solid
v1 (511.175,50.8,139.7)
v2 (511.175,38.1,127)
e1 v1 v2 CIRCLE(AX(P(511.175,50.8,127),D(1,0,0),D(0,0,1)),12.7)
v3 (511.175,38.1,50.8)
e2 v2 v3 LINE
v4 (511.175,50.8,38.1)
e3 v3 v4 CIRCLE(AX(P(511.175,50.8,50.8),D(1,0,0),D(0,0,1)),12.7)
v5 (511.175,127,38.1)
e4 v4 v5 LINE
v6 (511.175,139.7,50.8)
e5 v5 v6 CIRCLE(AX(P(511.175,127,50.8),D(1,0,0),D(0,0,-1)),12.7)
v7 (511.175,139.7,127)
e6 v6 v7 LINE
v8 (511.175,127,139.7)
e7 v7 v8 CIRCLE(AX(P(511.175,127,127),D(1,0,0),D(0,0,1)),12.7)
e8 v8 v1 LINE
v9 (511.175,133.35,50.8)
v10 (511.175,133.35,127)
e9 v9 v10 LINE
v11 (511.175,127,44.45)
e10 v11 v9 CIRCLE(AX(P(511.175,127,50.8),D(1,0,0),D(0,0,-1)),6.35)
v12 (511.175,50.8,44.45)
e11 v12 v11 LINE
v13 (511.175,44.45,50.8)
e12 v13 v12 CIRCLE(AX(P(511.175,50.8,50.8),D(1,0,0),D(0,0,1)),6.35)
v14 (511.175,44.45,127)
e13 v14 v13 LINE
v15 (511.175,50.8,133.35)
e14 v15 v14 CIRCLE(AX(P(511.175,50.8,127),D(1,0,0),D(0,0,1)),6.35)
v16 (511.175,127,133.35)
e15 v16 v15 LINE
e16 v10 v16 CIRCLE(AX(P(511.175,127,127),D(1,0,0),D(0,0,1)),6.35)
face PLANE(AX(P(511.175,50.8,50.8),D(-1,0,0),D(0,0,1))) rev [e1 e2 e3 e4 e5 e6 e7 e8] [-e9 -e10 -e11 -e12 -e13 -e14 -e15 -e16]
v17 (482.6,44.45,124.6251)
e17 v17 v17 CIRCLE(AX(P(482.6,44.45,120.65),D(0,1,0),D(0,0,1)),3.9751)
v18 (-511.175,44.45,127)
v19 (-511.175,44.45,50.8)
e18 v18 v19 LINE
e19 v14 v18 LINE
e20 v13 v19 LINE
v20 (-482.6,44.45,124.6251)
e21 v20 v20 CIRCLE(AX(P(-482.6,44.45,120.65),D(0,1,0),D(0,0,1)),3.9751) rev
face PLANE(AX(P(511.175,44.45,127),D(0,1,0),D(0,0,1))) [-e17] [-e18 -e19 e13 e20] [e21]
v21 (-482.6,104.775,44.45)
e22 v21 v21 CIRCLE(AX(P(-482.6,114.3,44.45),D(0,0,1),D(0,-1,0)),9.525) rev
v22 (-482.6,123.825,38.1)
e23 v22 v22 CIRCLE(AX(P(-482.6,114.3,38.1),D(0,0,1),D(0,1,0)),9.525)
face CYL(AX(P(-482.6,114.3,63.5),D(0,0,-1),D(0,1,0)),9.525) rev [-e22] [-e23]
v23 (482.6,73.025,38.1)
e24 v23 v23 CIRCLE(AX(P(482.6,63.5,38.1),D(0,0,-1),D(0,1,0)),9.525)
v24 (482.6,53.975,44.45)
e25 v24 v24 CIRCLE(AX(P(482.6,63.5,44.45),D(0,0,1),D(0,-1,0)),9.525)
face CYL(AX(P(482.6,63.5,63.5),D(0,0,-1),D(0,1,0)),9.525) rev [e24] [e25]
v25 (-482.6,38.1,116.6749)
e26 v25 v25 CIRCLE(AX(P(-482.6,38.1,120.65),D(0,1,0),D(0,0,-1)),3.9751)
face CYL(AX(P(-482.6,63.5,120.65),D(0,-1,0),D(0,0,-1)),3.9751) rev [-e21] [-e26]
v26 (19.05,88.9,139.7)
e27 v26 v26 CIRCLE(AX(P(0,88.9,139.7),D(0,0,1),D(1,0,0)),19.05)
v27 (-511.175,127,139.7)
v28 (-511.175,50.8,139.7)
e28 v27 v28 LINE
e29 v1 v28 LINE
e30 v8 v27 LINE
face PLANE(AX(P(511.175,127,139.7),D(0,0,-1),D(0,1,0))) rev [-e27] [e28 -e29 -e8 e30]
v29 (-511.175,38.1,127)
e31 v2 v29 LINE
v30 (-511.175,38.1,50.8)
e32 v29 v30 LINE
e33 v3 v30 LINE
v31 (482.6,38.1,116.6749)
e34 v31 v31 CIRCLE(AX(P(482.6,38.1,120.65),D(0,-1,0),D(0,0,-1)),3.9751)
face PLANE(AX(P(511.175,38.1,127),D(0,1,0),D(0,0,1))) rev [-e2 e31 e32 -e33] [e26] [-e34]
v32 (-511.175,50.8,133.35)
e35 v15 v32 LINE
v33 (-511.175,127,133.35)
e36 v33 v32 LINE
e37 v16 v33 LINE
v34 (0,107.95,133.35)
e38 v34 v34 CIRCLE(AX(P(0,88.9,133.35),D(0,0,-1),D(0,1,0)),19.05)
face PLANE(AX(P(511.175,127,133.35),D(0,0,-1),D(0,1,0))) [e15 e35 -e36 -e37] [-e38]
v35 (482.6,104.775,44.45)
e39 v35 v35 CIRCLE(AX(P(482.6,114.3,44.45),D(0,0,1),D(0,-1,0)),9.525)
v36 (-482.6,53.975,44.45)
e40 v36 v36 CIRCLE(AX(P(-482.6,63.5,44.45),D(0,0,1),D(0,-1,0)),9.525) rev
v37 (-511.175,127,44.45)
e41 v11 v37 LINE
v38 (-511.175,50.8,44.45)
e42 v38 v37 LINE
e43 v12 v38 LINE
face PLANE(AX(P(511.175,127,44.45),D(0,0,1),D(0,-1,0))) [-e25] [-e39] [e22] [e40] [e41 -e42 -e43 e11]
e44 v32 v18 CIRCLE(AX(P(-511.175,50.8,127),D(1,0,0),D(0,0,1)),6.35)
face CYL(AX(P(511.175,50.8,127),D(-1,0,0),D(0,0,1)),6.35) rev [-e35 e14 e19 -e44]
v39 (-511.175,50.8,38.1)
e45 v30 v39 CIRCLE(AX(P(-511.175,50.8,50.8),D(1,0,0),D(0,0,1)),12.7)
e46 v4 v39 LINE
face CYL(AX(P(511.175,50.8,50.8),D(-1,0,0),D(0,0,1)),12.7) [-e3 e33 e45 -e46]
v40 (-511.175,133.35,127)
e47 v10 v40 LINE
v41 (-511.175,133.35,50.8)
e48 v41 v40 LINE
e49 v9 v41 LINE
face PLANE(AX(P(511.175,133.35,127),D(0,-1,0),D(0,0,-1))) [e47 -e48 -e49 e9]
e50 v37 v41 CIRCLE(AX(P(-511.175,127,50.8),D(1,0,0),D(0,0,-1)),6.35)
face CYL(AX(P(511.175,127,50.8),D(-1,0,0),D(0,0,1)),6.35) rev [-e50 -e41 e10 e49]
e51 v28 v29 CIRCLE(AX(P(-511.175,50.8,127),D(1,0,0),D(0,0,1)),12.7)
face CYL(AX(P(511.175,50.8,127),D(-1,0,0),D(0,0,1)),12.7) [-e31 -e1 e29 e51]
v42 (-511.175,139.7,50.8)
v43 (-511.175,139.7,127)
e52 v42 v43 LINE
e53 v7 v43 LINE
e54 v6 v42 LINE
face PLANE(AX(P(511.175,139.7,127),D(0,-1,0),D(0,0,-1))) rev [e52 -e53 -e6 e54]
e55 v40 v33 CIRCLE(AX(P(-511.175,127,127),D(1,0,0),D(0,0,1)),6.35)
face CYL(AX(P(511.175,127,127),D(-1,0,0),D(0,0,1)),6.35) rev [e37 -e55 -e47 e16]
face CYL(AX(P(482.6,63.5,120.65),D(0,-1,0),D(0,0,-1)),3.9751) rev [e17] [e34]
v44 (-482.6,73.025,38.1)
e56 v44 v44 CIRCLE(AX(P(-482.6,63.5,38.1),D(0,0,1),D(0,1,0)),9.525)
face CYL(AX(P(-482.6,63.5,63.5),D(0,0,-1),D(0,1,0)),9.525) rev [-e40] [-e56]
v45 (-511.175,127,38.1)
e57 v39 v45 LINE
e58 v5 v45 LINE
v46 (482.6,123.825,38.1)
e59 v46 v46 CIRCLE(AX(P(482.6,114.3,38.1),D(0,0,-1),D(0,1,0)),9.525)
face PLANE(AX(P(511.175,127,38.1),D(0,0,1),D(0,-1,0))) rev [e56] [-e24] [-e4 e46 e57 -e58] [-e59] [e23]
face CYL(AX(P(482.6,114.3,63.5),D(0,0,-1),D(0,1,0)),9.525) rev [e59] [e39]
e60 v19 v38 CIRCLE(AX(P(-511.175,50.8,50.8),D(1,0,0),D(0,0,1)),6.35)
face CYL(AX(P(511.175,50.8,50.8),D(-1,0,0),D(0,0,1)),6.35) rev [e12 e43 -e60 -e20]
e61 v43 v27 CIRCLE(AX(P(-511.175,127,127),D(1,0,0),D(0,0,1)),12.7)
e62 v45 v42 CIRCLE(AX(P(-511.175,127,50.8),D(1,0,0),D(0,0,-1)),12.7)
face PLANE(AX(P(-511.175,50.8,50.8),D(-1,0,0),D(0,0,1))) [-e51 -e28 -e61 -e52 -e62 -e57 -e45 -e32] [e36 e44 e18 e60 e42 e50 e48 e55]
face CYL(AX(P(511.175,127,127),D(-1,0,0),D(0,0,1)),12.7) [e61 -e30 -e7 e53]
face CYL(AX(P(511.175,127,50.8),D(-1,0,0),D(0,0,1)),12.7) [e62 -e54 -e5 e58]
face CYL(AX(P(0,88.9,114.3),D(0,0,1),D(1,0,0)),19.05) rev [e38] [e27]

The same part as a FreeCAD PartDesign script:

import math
import FreeCAD as App
import Part
import Sketcher
Q = App.Units.Quantity

doc = App.newDocument("Part")
params = doc.addObject("Spreadsheet::Sheet", "Params")
for row, (alias, value) in enumerate([
    ("sketch1_radius", "0.5 in"),
    ("sketch1_width", "3 in"),
    ("sketch1_radius2", "0.25 in"),
    ("pad1_length", "40.25 in"),
    ("sketch2_diameter", "1.5 in"),
    ("pocket1_length", "1 in"),
    ("sketch3_diameter", "0.75 in"),
    ("pocket2_length", "1 in"),
    ("sketch4_diameter", "0.313 in"),
    ("pocket3_length", "1 in"),
], start=1):
    params.set(f"A{row}", alias)
    params.set(f"B{row}", "=" + value)
    params.setAlias(f"B{row}", alias)

body = doc.addObject("PartDesign::Body", "Body")

sketch1 = body.newObject("Sketcher::SketchObject", "Sketch")
sketch1.AttachmentSupport = (doc.getObject("YZ_Plane"), [""])
sketch1.MapMode = "FlatFace"
sketch1.addGeometry([
    Part.LineSegment(App.Vector(140, 51, 0), App.Vector(140, 127, 0)),
    Part.ArcOfCircle(Part.Circle(App.Vector(127, 127, 0), App.Vector(0, 0, 1), 13), math.radians(0), math.radians(90)),
    Part.LineSegment(App.Vector(127, 140, 0), App.Vector(51, 140, 0)),
    Part.ArcOfCircle(Part.Circle(App.Vector(51, 127, 0), App.Vector(0, 0, 1), 13), math.radians(90), math.radians(180)),
    Part.LineSegment(App.Vector(38, 127, 0), App.Vector(38, 51, 0)),
    Part.ArcOfCircle(Part.Circle(App.Vector(51, 51, 0), App.Vector(0, 0, 1), 13), math.radians(180), math.radians(270)),
    Part.LineSegment(App.Vector(51, 38, 0), App.Vector(127, 38, 0)),
    Part.ArcOfCircle(Part.Circle(App.Vector(127, 51, 0), App.Vector(0, 0, 1), 13), math.radians(-90), math.radians(0)),
    Part.LineSegment(App.Vector(133, 127, 0), App.Vector(133, 51, 0)),
    Part.ArcOfCircle(Part.Circle(App.Vector(127, 51, 0), App.Vector(0, 0, 1), 6), math.radians(-90), math.radians(0)),
    Part.LineSegment(App.Vector(127, 44, 0), App.Vector(51, 44, 0)),
    Part.ArcOfCircle(Part.Circle(App.Vector(51, 51, 0), App.Vector(0, 0, 1), 6), math.radians(180), math.radians(270)),
    Part.LineSegment(App.Vector(44, 51, 0), App.Vector(44, 127, 0)),
    Part.ArcOfCircle(Part.Circle(App.Vector(51, 127, 0), App.Vector(0, 0, 1), 6), math.radians(90), math.radians(180)),
    Part.LineSegment(App.Vector(51, 133, 0), App.Vector(127, 133, 0)),
    Part.ArcOfCircle(Part.Circle(App.Vector(127, 127, 0), App.Vector(0, 0, 1), 6), math.radians(0), math.radians(90)),
], False)
sketch1.addConstraint([
    Sketcher.Constraint("Tangent", 0, 2, 1, 1),
    Sketcher.Constraint("Tangent", 1, 2, 2, 1),
    Sketcher.Constraint("Tangent", 2, 2, 3, 1),
    Sketcher.Constraint("Tangent", 3, 2, 4, 1),
    Sketcher.Constraint("Tangent", 4, 2, 5, 1),
    Sketcher.Constraint("Tangent", 5, 2, 6, 1),
    Sketcher.Constraint("Tangent", 6, 2, 7, 1),
    Sketcher.Constraint("Tangent", 7, 2, 0, 1),
    Sketcher.Constraint("Tangent", 8, 2, 9, 2),
    Sketcher.Constraint("Tangent", 9, 1, 10, 1),
    Sketcher.Constraint("Tangent", 10, 2, 11, 2),
    Sketcher.Constraint("Tangent", 11, 1, 12, 1),
    Sketcher.Constraint("Tangent", 12, 2, 13, 2),
    Sketcher.Constraint("Tangent", 13, 1, 14, 1),
    Sketcher.Constraint("Tangent", 14, 2, 15, 2),
    Sketcher.Constraint("Tangent", 15, 1, 8, 1),
    Sketcher.Constraint("Vertical", 0),
    Sketcher.Constraint("Horizontal", 2),
    Sketcher.Constraint("Vertical", 4),
    Sketcher.Constraint("Horizontal", 6),
    Sketcher.Constraint("Vertical", 8),
    Sketcher.Constraint("Horizontal", 10),
    Sketcher.Constraint("Vertical", 12),
    Sketcher.Constraint("Horizontal", 14),
    Sketcher.Constraint("Coincident", 9, 3, 7, 3),
    Sketcher.Constraint("Coincident", 11, 3, 5, 3),
    Sketcher.Constraint("Coincident", 13, 3, 3, 3),
    Sketcher.Constraint("Equal", 1, 3),
    Sketcher.Constraint("Equal", 3, 5),
    Sketcher.Constraint("Equal", 5, 7),
    Sketcher.Constraint("Equal", 13, 15),
    Sketcher.Constraint("Equal", 14, 0),
    Sketcher.Constraint("Radius", 1, Q("0.5 in")),
    Sketcher.Constraint("DistanceX", 2, 2, 2, 1, Q("3 in")),
    Sketcher.Constraint("Radius", 9, Q("0.25 in")),
    Sketcher.Constraint("DistanceX", -1, 1, 1, 3, Q("5 in")),
    Sketcher.Constraint("DistanceY", -1, 1, 1, 3, Q("5 in")),
])
sketch1.setExpression("Constraints[32]", "Params.sketch1_radius")
sketch1.setExpression("Constraints[33]", "Params.sketch1_width")
sketch1.setExpression("Constraints[34]", "Params.sketch1_radius2")
pad1 = body.newObject("PartDesign::Pad", "Pad")
pad1.Profile = sketch1
pad1.setExpression("Length", "Params.pad1_length")
pad1.Midplane = True

sketch2 = body.newObject("Sketcher::SketchObject", "Sketch001")
sketch2.AttachmentSupport = (doc.getObject("XY_Plane"), [""])
sketch2.MapMode = "FlatFace"
sketch2.AttachmentOffset = App.Placement(App.Vector(0, 0, 5.5 * 25.4), App.Rotation())
sketch2.addGeometry(Part.Circle(App.Vector(0, 89, 0), App.Vector(0, 0, 1), 19), False)
sketch2.addConstraint([
    Sketcher.Constraint("PointOnObject", 0, 3, -2),
    Sketcher.Constraint("Diameter", 0, Q("1.5 in")),
    Sketcher.Constraint("DistanceY", -1, 1, 0, 3, Q("3.5 in")),
])
sketch2.setExpression("Constraints[1]", "Params.sketch2_diameter")
pocket1 = body.newObject("PartDesign::Pocket", "Pocket")
pocket1.Profile = sketch2
pocket1.setExpression("Length", "Params.pocket1_length")

sketch3 = body.newObject("Sketcher::SketchObject", "Sketch002")
sketch3.AttachmentSupport = (doc.getObject("XY_Plane"), [""])
sketch3.MapMode = "FlatFace"
sketch3.AttachmentOffset = App.Placement(App.Vector(0, 0, 1.5 * 25.4), App.Rotation())
sketch3.addGeometry([
    Part.Circle(App.Vector(483, 64, 0), App.Vector(0, 0, 1), 10),
    Part.Circle(App.Vector(483, 114, 0), App.Vector(0, 0, 1), 10),
], False)
sketch3.addConstraint([
    Sketcher.Constraint("Equal", 0, 1),
    Sketcher.Constraint("Vertical", 0, 3, 1, 3),
    Sketcher.Constraint("Diameter", 0, Q("0.75 in")),
    Sketcher.Constraint("DistanceX", -1, 1, 0, 3, Q("19 in")),
    Sketcher.Constraint("DistanceY", 0, 3, 1, 3, Q("2 in")),
    Sketcher.Constraint("DistanceY", -1, 1, 0, 3, Q("2.5 in")),
])
sketch3.setExpression("Constraints[2]", "Params.sketch3_diameter")
pocket2 = body.newObject("PartDesign::Pocket", "Pocket001")
pocket2.Profile = sketch3
pocket2.setExpression("Length", "Params.pocket2_length")
pocket2.Reversed = True

sketch4 = body.newObject("Sketcher::SketchObject", "Sketch003")
sketch4.AttachmentSupport = (doc.getObject("XZ_Plane"), [""])
sketch4.MapMode = "FlatFace"
sketch4.AttachmentOffset = App.Placement(App.Vector(0, 0, -1.5 * 25.4), App.Rotation())
sketch4.addGeometry(Part.Circle(App.Vector(482.6, 120.7, 0), App.Vector(0, 0, 1), 4), False)
sketch4.addConstraint([
    Sketcher.Constraint("Diameter", 0, Q("0.313 in")),
    Sketcher.Constraint("DistanceX", -1, 1, 0, 3, Q("19 in")),
    Sketcher.Constraint("DistanceY", -1, 1, 0, 3, Q("4.75 in")),
])
sketch4.setExpression("Constraints[0]", "Params.sketch4_diameter")
pocket3 = body.newObject("PartDesign::Pocket", "Pocket002")
pocket3.Profile = sketch4
pocket3.setExpression("Length", "Params.pocket3_length")
doc.recompute()

mirrored = body.newObject("PartDesign::Mirrored", "Mirrored")
mirrored.Originals = [pocket2, pocket3]
mirrored.MirrorPlane = (doc.getObject("YZ_Plane"), [""])
body.Tip = mirrored

doc.recompute()
